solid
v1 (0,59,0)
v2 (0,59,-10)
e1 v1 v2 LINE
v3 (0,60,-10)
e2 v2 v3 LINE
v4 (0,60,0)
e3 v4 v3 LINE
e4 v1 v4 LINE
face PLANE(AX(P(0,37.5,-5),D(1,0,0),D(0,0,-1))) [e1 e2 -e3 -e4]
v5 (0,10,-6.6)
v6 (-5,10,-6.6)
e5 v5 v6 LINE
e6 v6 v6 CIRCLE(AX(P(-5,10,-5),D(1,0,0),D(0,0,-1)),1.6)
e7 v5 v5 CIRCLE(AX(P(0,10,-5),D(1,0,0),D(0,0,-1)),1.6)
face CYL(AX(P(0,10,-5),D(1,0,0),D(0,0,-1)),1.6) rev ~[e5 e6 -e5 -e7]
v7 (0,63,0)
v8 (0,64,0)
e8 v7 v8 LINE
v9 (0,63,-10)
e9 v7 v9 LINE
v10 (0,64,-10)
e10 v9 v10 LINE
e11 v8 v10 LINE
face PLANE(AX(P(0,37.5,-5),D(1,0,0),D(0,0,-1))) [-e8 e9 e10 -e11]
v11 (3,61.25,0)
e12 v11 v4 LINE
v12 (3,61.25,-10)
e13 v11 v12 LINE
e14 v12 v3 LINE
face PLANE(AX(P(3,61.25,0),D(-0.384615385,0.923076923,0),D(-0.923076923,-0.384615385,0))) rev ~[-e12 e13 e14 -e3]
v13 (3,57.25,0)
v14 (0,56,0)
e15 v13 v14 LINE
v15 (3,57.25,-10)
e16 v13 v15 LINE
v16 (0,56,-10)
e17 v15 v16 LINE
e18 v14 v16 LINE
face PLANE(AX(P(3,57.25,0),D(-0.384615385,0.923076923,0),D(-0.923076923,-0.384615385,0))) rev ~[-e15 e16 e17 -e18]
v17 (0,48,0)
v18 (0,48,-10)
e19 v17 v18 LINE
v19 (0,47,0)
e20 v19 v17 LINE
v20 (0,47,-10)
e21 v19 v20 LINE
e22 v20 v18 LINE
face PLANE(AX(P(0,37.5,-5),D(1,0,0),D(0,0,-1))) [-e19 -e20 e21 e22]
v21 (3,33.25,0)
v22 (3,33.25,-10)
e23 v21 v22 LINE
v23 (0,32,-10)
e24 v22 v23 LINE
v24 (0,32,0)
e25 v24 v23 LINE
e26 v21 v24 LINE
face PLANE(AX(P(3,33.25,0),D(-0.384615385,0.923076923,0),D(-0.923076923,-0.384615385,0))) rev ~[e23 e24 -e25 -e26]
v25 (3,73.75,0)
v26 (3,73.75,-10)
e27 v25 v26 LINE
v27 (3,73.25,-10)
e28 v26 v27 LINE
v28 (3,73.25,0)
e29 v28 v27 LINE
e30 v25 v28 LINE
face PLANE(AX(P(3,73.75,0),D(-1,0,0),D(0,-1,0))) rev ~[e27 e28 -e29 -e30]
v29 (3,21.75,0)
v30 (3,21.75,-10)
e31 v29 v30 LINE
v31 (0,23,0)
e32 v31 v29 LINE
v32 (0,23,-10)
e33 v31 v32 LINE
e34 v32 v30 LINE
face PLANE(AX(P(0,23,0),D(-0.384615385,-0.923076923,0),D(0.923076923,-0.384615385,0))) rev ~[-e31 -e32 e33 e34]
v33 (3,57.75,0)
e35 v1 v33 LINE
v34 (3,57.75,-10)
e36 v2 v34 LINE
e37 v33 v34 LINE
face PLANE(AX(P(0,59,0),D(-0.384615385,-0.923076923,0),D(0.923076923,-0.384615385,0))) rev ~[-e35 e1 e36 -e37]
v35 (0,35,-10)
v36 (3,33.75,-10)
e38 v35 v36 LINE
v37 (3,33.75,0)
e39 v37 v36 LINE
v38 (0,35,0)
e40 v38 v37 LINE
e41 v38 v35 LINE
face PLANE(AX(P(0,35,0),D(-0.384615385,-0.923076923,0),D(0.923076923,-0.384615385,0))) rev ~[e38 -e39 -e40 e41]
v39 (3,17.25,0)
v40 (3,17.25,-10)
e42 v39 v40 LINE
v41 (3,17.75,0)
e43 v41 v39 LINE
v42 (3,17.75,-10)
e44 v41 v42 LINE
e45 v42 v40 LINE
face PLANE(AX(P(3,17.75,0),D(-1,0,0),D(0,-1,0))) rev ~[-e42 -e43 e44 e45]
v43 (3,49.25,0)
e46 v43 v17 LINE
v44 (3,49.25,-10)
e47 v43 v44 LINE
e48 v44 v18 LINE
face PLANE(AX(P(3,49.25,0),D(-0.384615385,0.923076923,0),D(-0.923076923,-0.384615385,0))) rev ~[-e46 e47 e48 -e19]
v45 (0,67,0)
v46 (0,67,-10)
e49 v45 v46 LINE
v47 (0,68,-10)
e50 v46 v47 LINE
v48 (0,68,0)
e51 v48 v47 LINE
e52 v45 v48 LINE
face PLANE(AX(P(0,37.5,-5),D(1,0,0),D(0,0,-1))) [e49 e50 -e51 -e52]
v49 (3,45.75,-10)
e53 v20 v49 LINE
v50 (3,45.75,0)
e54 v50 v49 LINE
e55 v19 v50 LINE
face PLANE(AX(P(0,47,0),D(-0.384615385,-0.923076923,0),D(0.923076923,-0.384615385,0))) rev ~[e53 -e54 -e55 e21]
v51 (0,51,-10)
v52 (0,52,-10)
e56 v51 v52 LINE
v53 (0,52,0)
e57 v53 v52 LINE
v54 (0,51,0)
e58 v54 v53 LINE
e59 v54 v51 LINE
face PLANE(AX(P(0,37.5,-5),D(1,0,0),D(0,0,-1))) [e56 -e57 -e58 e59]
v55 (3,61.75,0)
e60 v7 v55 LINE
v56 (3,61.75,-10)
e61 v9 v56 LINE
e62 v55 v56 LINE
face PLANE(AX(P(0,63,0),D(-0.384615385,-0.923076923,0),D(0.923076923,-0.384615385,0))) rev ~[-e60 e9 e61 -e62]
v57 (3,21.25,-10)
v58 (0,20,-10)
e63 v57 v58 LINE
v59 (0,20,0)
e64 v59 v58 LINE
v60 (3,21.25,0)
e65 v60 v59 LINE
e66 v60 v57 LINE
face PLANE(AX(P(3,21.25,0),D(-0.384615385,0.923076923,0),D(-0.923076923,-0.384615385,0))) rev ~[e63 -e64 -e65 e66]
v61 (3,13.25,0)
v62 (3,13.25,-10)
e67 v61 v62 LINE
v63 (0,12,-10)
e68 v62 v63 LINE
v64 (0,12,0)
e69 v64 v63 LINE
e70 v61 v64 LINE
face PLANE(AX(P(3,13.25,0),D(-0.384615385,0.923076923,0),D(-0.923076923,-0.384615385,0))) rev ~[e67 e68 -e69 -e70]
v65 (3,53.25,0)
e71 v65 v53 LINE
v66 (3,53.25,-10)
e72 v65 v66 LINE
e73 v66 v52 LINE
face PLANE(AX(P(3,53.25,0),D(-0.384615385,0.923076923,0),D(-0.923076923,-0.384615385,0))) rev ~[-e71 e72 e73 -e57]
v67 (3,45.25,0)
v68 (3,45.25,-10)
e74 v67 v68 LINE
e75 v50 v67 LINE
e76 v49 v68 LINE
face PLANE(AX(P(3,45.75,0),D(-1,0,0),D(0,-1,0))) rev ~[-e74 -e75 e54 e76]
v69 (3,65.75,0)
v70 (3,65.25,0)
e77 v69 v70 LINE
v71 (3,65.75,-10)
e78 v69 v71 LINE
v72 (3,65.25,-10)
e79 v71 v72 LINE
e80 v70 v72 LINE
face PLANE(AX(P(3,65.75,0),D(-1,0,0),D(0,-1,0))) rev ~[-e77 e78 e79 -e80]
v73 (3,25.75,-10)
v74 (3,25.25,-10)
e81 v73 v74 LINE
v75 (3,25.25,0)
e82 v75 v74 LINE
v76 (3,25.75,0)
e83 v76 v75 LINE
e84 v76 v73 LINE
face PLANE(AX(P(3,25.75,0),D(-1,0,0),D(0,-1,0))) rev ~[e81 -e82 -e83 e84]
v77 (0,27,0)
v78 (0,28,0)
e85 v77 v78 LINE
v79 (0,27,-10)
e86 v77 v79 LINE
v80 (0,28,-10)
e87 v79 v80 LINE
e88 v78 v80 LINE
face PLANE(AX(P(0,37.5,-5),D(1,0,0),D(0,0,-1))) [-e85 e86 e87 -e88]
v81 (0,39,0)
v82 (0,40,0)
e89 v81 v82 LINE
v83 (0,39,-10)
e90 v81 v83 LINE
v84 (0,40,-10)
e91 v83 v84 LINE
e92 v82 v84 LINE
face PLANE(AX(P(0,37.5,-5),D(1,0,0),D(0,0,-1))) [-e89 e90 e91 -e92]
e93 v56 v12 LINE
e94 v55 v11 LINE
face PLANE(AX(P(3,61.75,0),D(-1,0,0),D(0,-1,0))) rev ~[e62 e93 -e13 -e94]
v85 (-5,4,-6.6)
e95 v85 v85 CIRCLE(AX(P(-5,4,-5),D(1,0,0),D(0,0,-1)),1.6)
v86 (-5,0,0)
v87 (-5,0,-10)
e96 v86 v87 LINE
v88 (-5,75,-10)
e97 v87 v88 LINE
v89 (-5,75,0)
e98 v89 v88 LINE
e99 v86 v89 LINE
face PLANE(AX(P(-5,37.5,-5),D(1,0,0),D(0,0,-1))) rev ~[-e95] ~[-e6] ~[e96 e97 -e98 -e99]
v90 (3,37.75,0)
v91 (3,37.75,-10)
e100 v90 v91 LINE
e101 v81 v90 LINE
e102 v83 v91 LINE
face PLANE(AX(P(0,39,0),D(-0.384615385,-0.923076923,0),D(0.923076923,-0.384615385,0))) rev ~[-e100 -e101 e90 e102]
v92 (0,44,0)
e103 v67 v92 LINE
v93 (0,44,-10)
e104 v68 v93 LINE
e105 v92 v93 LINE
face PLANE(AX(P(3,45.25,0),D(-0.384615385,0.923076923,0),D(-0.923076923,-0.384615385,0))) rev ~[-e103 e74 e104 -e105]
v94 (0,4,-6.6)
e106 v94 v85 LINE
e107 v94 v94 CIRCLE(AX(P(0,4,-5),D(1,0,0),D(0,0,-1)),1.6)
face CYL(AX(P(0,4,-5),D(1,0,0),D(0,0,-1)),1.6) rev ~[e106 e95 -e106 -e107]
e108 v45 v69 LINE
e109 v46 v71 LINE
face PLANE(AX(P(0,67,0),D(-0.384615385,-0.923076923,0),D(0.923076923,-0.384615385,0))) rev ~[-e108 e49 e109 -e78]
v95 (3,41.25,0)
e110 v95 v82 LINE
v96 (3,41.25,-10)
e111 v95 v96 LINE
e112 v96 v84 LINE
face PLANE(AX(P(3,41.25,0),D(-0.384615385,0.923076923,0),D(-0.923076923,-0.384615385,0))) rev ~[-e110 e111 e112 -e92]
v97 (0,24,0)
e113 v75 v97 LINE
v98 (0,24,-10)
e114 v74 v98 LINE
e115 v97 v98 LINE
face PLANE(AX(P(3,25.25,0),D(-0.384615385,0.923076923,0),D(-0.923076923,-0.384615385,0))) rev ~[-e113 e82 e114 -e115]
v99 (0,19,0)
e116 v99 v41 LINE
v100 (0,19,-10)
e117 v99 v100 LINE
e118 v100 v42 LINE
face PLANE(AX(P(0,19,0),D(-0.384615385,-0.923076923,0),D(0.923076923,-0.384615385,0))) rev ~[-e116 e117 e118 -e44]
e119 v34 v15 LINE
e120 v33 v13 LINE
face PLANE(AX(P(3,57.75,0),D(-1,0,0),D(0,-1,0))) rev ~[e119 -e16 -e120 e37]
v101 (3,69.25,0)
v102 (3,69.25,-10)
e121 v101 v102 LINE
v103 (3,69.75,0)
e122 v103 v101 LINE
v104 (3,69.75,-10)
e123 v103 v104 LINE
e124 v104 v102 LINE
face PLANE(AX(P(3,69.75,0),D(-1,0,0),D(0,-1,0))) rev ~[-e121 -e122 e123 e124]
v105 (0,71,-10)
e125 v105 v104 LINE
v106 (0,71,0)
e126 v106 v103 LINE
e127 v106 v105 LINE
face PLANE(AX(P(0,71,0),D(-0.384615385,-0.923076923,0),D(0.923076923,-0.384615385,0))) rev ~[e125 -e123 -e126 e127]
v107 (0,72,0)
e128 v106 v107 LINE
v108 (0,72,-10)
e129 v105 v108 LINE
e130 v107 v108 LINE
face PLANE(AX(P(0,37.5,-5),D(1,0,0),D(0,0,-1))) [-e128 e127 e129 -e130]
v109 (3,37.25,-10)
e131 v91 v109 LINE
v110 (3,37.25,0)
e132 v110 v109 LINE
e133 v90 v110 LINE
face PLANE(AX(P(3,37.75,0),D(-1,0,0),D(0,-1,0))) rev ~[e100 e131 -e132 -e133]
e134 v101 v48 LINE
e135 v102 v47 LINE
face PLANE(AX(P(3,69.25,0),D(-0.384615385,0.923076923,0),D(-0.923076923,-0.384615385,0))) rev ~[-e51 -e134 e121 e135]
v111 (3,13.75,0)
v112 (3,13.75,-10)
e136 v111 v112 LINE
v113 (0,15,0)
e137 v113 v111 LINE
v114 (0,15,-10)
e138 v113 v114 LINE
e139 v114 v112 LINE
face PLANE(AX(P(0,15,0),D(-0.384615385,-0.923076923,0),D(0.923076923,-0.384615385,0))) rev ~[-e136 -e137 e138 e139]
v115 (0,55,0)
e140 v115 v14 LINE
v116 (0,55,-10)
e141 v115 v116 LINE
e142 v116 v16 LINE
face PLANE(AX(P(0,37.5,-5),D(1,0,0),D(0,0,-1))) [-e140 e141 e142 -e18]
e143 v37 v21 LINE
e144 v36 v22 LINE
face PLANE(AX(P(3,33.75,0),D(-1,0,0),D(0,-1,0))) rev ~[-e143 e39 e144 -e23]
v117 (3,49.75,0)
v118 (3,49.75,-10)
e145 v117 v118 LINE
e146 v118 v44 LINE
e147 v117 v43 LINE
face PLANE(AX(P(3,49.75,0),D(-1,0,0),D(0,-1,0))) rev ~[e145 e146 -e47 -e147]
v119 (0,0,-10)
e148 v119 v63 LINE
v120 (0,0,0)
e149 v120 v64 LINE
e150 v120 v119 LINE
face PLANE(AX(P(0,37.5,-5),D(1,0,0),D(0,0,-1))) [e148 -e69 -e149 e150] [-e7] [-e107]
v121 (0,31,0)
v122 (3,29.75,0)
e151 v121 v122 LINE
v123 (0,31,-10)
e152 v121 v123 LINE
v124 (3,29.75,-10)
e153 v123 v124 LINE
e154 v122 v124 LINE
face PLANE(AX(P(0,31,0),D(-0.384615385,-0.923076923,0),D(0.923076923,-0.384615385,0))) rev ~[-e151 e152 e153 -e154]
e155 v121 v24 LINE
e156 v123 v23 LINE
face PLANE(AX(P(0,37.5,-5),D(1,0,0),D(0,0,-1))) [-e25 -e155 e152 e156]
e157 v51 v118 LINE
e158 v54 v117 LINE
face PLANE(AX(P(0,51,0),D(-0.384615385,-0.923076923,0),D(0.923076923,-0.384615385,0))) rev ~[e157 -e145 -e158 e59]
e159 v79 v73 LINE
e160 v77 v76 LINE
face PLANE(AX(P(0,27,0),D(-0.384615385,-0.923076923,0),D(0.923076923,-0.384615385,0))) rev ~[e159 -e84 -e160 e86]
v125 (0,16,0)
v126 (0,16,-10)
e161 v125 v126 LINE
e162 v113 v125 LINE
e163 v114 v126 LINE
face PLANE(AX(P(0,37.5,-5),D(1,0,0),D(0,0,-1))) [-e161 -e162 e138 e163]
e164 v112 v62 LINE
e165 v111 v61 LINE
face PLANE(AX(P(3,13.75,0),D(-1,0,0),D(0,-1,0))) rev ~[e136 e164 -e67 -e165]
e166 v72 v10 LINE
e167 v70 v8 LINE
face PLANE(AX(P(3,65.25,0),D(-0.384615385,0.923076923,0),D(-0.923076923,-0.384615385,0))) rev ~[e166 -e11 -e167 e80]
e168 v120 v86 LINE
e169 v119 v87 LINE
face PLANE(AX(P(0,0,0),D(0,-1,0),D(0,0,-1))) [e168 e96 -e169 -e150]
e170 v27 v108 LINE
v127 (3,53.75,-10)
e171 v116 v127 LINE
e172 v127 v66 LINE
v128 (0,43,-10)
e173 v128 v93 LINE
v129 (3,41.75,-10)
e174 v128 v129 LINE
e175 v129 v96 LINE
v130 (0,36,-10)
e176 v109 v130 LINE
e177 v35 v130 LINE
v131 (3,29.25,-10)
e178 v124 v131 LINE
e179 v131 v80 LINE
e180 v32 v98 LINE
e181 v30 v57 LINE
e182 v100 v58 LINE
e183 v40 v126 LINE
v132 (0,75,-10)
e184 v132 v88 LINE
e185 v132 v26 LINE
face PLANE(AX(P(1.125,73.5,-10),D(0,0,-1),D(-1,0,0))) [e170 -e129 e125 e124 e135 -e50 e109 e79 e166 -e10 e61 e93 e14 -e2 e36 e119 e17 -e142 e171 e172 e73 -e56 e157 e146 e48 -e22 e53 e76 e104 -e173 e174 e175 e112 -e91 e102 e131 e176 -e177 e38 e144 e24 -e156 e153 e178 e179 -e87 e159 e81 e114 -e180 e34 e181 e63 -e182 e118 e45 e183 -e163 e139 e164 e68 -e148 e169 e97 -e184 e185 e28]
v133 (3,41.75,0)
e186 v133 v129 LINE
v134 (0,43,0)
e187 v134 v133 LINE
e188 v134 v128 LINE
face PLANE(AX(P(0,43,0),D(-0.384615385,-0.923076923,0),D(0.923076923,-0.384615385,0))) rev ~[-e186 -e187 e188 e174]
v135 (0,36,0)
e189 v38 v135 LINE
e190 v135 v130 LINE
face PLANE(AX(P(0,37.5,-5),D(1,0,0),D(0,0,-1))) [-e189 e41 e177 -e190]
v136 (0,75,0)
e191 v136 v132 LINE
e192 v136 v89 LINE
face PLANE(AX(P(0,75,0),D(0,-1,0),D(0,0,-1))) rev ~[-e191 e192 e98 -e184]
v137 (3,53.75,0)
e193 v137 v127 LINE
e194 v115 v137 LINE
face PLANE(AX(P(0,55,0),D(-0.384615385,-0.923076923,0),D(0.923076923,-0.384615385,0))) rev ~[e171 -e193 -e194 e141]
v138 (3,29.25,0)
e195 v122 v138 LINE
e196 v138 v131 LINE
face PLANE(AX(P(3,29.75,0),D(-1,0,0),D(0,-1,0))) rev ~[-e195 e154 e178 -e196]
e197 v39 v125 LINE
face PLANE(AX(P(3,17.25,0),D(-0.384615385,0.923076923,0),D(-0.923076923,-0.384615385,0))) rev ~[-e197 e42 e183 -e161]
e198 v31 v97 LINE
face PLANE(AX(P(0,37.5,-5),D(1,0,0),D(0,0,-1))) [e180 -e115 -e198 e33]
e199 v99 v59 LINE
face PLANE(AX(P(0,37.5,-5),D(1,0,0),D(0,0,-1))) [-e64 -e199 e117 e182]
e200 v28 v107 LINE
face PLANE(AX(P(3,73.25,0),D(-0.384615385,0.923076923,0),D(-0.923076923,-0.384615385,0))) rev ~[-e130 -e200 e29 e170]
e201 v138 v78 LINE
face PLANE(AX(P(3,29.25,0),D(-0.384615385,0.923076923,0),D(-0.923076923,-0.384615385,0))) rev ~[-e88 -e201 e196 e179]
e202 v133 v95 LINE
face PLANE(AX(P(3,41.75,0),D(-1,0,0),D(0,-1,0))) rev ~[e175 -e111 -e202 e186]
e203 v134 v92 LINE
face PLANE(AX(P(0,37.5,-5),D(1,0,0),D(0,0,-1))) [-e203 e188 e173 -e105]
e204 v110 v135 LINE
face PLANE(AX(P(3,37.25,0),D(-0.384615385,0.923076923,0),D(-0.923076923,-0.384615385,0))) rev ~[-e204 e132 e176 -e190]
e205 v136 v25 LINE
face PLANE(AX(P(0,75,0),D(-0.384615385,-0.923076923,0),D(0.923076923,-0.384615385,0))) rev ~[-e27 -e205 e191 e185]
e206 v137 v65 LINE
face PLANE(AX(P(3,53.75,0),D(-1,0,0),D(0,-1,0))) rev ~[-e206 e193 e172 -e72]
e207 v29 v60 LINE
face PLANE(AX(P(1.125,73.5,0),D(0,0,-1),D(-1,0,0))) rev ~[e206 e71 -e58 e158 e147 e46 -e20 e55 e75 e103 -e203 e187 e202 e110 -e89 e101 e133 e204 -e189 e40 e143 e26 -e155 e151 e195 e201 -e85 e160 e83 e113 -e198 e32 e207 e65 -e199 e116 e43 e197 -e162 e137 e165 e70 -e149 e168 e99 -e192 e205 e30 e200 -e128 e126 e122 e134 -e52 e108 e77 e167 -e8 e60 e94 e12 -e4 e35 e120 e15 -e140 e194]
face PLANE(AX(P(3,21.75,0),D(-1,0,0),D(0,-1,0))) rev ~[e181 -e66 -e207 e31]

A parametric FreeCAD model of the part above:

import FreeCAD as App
import Part
import Sketcher


def add_polygon(sketch, points):
    """Adds a closed chain of lines whose ends are joined by coincident constraints."""
    first, n = sketch.GeometryCount, len(points)
    for a, b in zip(points, points[1:] + points[:1]):
        sketch.addGeometry(Part.LineSegment(App.Vector(*a, 0), App.Vector(*b, 0)), False)
    for i in range(n):
        sketch.addConstraint(Sketcher.Constraint("Coincident", first + i, 2, first + (i + 1) % n, 1))

doc = App.newDocument("Part")
body = doc.addObject("PartDesign::Body", "Body")

sketch1 = body.newObject("Sketcher::SketchObject", "Sketch")
sketch1.AttachmentSupport = (doc.getObject("YZ_Plane"), [""])
sketch1.MapMode = "FlatFace"
add_polygon(sketch1, [(75, 0), (0, 0), (0, -10), (75, -10)])
sketch1.addConstraint(Sketcher.Constraint("Horizontal", 0))
sketch1.addConstraint(Sketcher.Constraint("Vertical", 1))
sketch1.addConstraint(Sketcher.Constraint("Horizontal", 2))
sketch1.addConstraint(Sketcher.Constraint("Vertical", 3))
sketch1.addConstraint(Sketcher.Constraint("Coincident", 0, 2, -1, 1))
sketch1.addConstraint(Sketcher.Constraint("DistanceX", 0, 2, 0, 1, 75.0))
sketch1.addConstraint(Sketcher.Constraint("DistanceY", 1, 2, 1, 1, 10.0))
pad1 = body.newObject("PartDesign::Pad", "Pad")
pad1.Profile = sketch1
pad1.Length = 5
pad1.Reversed = True

sketch2 = body.newObject("Sketcher::SketchObject", "Sketch001")
sketch2.AttachmentSupport = (doc.getObject("XY_Plane"), [""])
sketch2.MapMode = "FlatFace"
add_polygon(sketch2, [(3, 73.8), (0, 75), (0, 72), (3, 73.2)])
sketch2.addConstraint(Sketcher.Constraint("Vertical", 1))
sketch2.addConstraint(Sketcher.Constraint("Vertical", 3))
sketch2.addConstraint(Sketcher.Constraint("PointOnObject", 0, 2, -2))
sketch2.addConstraint(Sketcher.Constraint("Equal", 0, 2))
sketch2.addConstraint(Sketcher.Constraint("DistanceY", 1, 2, 1, 1, 3.0))
sketch2.addConstraint(Sketcher.Constraint("DistanceY", 3, 1, 3, 2, 0.5))
sketch2.addConstraint(Sketcher.Constraint("DistanceY", -1, 1, 0, 2, 75.0))
sketch2.addConstraint(Sketcher.Constraint("DistanceX", -1, 1, 2, 2, 3.0))
pad2 = body.newObject("PartDesign::Pad", "Pad001")
pad2.Profile = sketch2
pad2.Length = 10
pad2.Reversed = True
doc.recompute()

linearpattern = body.newObject("PartDesign::LinearPattern", "LinearPattern")
linearpattern.Originals = [pad2]
linearpattern.Direction = (doc.getObject("Y_Axis"), [""])
linearpattern.Mode = "offset"
linearpattern.Offset = 4
linearpattern.Occurrences = 16
linearpattern.Reversed = True
body.Tip = linearpattern

sketch3 = body.newObject("Sketcher::SketchObject", "Sketch002")
sketch3.AttachmentSupport = (doc.getObject("YZ_Plane"), [""])
sketch3.MapMode = "FlatFace"
sketch3.addGeometry(Part.Circle(App.Vector(10, -5, 0), App.Vector(0, 0, 1), 1.6), False)
sketch3.addGeometry(Part.Circle(App.Vector(4, -5, 0), App.Vector(0, 0, 1), 1.6), False)
sketch3.addConstraint(Sketcher.Constraint("Equal", 0, 1))
sketch3.addConstraint(Sketcher.Constraint("Horizontal", 0, 3, 1, 3))
sketch3.addConstraint(Sketcher.Constraint("Diameter", 0, 3.2))
sketch3.addConstraint(Sketcher.Constraint("DistanceX", -1, 1, 0, 3, 10.0))
sketch3.addConstraint(Sketcher.Constraint("DistanceY", 0, 3, -1, 1, 5.0))
sketch3.addConstraint(Sketcher.Constraint("DistanceX", -1, 1, 1, 3, 4.0))
pocket1 = body.newObject("PartDesign::Pocket", "Pocket")
pocket1.Profile = sketch3
pocket1.Length = 10

doc.recompute()
